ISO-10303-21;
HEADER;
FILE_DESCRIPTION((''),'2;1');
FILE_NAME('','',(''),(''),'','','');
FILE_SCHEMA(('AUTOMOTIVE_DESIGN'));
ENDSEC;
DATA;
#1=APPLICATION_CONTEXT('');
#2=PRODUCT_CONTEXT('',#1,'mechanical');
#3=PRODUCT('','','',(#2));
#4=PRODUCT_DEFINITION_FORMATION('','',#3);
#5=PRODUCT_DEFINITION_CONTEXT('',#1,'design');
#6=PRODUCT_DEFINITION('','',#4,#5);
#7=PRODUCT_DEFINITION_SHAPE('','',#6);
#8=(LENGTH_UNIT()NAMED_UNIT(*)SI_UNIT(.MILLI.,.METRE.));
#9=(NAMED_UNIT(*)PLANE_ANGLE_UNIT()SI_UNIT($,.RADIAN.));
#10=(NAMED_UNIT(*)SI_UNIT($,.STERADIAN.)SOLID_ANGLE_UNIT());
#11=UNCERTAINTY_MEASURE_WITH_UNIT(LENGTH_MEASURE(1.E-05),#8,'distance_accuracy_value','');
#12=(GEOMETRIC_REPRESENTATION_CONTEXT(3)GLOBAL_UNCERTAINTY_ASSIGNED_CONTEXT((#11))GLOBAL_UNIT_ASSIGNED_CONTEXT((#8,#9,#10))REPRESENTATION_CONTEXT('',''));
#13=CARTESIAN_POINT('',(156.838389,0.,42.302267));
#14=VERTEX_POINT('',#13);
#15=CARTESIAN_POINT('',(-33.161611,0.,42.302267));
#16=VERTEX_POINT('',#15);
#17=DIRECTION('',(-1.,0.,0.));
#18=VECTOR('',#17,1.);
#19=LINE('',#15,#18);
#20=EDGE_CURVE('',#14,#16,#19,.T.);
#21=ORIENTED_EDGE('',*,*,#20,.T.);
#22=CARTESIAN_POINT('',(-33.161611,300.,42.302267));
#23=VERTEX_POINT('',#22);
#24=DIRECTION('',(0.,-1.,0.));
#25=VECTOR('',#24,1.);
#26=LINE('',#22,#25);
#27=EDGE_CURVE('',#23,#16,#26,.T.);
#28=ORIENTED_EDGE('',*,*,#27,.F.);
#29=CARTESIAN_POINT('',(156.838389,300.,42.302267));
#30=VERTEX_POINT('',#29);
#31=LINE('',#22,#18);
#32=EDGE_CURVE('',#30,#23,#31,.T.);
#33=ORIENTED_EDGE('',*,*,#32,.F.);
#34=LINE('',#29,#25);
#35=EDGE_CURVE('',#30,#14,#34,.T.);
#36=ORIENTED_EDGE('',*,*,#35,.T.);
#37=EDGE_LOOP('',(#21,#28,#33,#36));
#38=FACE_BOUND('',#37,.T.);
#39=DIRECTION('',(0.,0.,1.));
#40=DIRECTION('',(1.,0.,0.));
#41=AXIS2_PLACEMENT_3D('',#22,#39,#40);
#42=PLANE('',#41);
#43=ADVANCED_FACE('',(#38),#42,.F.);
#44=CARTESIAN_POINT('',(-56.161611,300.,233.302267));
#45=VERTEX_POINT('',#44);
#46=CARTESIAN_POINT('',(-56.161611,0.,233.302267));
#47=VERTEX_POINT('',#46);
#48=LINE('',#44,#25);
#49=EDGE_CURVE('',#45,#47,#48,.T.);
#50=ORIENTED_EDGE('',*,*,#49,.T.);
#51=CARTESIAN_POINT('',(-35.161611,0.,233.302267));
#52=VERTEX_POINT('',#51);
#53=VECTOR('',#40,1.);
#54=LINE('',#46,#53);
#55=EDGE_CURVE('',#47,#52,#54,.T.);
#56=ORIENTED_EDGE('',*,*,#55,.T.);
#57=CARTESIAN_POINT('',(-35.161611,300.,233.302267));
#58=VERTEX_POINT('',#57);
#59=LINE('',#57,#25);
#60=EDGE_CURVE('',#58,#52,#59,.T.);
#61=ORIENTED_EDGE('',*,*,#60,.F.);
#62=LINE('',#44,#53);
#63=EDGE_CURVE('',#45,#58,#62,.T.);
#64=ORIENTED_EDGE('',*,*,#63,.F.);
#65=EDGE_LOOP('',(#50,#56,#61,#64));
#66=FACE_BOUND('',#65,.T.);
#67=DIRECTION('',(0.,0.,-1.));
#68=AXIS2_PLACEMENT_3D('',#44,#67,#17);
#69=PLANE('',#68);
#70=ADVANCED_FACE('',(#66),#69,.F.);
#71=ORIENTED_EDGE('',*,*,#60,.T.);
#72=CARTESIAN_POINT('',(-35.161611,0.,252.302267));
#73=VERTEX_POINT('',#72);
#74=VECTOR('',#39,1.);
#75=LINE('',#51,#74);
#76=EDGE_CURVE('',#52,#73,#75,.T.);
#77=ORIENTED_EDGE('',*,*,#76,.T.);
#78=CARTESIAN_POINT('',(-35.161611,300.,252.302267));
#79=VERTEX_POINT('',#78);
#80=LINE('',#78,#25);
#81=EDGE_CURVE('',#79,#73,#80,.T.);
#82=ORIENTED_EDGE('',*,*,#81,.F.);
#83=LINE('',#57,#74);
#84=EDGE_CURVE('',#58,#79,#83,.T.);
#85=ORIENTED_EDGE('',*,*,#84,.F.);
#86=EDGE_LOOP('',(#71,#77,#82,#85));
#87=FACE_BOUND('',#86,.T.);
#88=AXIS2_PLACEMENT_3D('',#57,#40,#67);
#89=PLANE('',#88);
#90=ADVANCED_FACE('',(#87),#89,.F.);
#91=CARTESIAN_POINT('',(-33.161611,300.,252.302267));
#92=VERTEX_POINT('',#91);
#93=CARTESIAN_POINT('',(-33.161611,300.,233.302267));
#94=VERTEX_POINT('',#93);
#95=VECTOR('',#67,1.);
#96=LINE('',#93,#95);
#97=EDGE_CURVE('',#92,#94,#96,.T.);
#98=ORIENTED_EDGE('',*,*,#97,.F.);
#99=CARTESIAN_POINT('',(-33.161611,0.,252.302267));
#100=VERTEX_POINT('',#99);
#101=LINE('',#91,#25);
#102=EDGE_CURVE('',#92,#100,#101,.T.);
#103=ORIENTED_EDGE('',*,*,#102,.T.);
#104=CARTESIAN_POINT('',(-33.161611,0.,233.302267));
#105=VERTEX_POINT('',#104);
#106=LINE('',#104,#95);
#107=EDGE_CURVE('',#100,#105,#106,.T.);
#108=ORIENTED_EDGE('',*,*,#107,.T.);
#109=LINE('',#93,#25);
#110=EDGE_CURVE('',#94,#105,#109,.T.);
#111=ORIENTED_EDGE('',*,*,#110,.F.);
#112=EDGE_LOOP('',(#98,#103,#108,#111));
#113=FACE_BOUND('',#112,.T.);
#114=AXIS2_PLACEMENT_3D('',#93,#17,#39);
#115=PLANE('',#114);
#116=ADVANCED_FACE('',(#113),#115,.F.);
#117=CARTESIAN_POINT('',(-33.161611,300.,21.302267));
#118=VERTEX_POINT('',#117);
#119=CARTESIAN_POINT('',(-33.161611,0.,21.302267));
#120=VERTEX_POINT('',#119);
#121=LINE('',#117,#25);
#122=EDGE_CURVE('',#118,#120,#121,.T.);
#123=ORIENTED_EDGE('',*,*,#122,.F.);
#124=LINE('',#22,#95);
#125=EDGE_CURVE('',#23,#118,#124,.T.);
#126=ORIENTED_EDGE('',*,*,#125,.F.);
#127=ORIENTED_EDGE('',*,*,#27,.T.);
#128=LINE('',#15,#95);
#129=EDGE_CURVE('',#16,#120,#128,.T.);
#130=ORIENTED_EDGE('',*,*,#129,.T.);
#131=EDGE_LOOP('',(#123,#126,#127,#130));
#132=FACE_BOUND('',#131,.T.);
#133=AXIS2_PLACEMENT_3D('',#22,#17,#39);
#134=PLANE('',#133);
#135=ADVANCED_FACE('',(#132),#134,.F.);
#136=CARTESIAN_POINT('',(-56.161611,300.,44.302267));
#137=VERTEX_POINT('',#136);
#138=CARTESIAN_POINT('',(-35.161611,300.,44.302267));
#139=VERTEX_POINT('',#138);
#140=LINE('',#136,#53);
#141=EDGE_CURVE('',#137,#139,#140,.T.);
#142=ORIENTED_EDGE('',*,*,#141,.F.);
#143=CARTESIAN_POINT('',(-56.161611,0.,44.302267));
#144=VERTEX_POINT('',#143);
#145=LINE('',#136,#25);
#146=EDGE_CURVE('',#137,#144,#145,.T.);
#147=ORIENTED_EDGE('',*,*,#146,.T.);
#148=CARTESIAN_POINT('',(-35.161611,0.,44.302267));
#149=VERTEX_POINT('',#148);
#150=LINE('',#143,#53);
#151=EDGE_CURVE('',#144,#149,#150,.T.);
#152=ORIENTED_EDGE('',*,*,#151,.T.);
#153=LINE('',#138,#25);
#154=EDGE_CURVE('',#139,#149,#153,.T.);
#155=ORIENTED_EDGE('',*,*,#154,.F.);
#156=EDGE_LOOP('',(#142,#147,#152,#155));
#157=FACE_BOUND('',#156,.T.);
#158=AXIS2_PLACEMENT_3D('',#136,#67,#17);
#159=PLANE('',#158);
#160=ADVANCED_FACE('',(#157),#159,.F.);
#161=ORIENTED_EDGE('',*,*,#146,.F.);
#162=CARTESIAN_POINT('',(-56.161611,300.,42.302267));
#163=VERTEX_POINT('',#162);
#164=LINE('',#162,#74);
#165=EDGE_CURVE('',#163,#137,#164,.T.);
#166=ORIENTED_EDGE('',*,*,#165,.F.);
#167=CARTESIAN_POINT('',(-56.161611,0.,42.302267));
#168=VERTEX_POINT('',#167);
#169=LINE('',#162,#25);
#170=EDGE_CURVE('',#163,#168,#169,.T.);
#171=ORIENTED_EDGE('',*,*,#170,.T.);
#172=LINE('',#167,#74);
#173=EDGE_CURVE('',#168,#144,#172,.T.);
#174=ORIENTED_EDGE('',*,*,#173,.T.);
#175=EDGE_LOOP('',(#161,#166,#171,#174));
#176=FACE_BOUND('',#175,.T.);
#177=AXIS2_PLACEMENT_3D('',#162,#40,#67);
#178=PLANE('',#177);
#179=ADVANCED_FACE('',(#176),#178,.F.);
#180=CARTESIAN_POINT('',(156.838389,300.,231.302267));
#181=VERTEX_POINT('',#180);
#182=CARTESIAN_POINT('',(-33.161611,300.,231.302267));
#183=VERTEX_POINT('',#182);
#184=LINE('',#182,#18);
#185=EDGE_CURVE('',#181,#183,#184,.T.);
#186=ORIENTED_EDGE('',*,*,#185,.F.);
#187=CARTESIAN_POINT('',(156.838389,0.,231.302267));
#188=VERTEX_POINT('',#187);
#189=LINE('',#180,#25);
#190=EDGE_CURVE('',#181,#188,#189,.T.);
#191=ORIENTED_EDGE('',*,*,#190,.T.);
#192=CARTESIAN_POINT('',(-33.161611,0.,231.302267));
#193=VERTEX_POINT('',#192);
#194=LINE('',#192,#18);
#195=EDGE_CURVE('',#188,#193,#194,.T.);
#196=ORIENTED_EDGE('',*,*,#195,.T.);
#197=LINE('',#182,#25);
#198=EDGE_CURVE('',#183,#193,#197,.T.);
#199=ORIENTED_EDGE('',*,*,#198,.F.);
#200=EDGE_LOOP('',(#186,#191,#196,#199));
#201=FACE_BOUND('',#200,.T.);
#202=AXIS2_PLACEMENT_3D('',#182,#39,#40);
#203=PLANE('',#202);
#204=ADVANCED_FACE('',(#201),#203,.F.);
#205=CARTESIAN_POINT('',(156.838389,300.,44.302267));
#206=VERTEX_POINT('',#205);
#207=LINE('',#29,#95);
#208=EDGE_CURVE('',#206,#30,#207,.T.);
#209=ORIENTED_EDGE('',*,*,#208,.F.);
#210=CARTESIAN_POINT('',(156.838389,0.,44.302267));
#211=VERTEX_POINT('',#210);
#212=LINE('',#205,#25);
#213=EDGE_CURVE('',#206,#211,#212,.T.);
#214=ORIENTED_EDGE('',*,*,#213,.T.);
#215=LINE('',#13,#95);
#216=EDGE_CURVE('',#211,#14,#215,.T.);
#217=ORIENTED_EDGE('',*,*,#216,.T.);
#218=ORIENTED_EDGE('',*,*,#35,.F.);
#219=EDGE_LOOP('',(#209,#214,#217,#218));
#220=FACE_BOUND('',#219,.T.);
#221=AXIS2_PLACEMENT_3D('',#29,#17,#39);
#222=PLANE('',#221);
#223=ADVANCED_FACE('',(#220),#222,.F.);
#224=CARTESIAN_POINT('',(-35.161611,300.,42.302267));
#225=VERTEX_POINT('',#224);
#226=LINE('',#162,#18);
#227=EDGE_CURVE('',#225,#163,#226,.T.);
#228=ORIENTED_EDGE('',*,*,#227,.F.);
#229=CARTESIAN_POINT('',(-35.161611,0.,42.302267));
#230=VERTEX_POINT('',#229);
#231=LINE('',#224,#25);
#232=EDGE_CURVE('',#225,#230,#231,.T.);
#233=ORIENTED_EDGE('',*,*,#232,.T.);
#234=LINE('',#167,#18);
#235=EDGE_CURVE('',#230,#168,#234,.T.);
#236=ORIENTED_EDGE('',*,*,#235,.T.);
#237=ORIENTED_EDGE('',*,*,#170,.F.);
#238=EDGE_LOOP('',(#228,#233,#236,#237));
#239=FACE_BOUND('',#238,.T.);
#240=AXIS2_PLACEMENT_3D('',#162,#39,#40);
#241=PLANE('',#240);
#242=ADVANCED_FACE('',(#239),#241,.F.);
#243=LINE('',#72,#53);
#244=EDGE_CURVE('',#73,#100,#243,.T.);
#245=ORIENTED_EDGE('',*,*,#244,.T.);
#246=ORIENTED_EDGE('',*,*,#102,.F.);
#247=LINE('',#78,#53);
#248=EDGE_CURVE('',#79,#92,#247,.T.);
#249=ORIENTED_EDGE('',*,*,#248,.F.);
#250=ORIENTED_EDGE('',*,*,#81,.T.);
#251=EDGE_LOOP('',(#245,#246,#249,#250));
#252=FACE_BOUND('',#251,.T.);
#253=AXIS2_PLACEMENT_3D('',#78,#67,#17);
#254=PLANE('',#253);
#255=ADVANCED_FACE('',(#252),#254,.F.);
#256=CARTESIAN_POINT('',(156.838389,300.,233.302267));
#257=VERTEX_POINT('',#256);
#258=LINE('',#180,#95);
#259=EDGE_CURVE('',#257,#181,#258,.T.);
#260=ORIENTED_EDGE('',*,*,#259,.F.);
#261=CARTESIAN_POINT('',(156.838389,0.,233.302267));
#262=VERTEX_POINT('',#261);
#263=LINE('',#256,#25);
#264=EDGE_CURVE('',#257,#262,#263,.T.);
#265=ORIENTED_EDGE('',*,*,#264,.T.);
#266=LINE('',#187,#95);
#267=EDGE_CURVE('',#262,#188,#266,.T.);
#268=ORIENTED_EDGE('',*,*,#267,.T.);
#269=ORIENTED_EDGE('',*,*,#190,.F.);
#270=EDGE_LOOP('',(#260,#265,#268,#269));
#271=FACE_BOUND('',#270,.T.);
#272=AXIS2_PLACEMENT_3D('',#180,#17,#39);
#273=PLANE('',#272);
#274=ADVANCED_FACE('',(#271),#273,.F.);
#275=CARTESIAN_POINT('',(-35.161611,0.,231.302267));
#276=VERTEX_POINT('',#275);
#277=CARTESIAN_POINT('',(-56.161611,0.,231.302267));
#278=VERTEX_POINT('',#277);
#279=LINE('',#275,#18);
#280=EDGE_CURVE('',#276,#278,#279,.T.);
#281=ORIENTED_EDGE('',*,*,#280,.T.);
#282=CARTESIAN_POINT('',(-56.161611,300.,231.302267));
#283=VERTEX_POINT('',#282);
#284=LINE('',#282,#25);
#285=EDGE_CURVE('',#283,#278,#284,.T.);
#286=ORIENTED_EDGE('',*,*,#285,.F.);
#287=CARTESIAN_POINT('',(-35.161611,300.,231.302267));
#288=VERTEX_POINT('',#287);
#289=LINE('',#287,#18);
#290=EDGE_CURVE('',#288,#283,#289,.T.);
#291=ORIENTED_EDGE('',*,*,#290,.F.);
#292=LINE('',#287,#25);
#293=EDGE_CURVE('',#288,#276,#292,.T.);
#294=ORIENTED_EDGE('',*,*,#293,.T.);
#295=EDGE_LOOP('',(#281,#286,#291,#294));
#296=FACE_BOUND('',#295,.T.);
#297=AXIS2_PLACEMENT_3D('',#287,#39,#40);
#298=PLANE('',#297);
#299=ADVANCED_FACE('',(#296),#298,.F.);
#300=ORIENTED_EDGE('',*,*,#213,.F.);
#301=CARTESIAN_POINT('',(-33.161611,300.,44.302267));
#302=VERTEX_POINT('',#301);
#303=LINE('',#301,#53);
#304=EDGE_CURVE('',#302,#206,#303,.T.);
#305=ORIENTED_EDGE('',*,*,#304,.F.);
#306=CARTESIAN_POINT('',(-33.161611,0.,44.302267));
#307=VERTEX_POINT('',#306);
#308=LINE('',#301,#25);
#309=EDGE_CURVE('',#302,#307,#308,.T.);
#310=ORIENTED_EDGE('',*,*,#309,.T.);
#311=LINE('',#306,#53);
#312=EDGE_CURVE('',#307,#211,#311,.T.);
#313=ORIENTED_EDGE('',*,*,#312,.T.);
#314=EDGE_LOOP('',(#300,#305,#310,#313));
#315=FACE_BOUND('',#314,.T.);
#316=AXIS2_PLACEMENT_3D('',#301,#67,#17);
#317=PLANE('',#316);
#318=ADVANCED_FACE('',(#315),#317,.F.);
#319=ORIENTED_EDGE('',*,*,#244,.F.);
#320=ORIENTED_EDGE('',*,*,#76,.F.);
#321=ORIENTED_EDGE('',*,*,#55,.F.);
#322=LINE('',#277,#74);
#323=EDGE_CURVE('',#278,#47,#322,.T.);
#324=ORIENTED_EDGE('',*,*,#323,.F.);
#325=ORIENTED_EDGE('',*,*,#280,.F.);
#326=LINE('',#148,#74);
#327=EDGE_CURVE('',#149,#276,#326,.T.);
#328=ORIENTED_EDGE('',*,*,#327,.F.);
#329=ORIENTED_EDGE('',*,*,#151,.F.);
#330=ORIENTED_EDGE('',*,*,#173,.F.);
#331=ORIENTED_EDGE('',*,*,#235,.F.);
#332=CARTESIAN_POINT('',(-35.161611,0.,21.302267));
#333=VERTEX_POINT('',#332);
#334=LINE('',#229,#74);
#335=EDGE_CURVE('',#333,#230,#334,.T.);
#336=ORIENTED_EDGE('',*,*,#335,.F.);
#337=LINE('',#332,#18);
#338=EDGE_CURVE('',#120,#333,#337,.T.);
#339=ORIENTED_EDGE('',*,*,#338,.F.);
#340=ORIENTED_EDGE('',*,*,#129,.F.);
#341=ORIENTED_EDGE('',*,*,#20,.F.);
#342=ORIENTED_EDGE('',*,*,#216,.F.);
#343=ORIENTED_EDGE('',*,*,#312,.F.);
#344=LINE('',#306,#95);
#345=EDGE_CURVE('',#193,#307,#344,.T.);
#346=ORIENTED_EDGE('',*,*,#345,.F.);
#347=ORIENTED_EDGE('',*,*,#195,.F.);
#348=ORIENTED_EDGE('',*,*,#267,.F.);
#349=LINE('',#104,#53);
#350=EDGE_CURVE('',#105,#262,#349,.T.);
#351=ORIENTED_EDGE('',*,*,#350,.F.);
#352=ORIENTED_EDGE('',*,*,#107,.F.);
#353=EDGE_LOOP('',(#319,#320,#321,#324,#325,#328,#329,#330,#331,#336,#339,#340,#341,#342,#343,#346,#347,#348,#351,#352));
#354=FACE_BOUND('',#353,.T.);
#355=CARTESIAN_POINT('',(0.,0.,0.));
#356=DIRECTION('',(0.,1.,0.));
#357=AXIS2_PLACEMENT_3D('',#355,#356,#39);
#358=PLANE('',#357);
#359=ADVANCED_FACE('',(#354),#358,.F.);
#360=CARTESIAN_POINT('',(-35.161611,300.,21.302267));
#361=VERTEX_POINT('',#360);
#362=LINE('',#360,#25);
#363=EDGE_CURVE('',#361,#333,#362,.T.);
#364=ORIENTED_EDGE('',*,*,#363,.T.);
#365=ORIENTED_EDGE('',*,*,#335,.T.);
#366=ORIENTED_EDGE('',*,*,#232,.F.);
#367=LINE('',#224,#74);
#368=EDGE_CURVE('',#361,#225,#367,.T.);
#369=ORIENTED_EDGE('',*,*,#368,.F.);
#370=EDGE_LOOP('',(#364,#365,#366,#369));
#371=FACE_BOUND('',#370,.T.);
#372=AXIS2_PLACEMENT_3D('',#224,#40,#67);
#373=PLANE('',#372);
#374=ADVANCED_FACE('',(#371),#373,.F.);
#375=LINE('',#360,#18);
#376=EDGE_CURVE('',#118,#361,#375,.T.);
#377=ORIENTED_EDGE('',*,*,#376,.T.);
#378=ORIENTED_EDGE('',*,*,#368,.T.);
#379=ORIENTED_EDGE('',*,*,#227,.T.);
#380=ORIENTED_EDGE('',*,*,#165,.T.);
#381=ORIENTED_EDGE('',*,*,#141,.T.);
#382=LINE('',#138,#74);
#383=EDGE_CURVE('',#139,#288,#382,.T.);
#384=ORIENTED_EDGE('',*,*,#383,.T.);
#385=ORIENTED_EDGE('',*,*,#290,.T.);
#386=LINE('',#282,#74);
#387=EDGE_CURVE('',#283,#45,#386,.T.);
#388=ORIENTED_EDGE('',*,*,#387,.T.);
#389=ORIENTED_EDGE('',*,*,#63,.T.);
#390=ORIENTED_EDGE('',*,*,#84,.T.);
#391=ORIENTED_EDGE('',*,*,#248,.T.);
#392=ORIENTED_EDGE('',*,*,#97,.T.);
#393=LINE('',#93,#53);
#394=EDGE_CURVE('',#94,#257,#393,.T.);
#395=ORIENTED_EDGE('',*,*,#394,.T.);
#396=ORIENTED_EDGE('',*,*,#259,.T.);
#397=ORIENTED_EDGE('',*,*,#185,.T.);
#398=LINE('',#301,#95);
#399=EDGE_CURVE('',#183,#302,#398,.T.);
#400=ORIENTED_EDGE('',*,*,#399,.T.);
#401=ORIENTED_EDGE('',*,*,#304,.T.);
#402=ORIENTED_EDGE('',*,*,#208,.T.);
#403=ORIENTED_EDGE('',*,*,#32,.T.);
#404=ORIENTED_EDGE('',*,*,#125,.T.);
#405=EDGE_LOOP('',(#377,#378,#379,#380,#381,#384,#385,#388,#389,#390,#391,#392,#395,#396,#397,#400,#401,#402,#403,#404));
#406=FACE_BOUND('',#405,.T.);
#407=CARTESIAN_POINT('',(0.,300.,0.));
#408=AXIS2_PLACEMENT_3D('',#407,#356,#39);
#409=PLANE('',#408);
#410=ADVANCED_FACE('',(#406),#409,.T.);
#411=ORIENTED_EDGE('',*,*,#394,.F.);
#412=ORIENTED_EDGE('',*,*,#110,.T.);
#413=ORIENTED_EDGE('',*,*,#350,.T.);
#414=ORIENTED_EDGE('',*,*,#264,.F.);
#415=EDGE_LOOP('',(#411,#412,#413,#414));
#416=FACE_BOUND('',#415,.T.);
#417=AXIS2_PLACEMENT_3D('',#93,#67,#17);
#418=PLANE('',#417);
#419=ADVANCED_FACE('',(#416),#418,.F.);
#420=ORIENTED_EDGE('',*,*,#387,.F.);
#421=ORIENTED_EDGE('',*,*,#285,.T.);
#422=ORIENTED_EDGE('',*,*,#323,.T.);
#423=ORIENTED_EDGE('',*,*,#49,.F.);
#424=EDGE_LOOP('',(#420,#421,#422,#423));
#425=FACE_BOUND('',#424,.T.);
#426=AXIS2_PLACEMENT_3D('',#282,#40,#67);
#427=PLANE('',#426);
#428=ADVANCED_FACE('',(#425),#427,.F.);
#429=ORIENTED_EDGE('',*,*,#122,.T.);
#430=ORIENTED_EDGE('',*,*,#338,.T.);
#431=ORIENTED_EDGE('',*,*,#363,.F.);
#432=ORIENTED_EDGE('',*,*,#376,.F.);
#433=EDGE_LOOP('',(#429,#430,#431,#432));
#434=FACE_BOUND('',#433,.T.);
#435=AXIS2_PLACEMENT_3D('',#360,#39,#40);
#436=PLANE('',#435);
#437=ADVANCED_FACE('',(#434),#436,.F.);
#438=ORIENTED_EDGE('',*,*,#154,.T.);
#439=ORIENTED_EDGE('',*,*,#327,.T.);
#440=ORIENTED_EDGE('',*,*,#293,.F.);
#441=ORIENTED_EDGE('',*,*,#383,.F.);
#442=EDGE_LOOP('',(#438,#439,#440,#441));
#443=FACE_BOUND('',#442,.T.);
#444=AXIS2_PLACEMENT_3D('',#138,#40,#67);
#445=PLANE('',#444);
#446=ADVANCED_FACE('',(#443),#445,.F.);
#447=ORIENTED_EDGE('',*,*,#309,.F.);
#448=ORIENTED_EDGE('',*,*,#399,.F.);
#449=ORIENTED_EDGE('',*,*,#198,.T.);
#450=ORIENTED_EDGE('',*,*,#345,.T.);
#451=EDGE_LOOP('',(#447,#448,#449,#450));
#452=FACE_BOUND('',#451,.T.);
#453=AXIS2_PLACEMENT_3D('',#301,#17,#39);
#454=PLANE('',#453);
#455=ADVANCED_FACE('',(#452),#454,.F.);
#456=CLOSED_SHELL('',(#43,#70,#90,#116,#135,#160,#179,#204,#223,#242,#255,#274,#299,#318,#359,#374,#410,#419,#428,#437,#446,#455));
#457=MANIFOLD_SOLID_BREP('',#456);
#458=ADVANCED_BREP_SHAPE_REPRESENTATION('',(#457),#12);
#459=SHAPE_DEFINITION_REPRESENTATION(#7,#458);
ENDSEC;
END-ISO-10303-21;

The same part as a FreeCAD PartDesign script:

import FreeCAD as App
import Part
import Sketcher


def add_polygon(sketch, points):
    """Adds a closed chain of lines whose ends are joined by coincident constraints."""
    first, n = sketch.GeometryCount, len(points)
    for a, b in zip(points, points[1:] + points[:1]):
        sketch.addGeometry(Part.LineSegment(App.Vector(*a, 0), App.Vector(*b, 0)), False)
    for i in range(n):
        sketch.addConstraint(Sketcher.Constraint("Coincident", first + i, 2, first + (i + 1) % n, 1))

doc = App.newDocument("Part")
body = doc.addObject("PartDesign::Body", "Body")

sketch1 = body.newObject("Sketcher::SketchObject", "Sketch")
sketch1.AttachmentSupport = (doc.getObject("XZ_Plane"), [""])
sketch1.MapMode = "FlatFace"
add_polygon(sketch1, [(-35.161611, 42.302267), (-56.161611, 42.302267), (-56.161611, 44.302267), (-35.161611, 44.302267), (-35.161611, 231.302267), (-56.161611, 231.302267), (-56.161611, 233.302267), (-35.161611, 233.302267), (-35.161611, 252.302267), (-33.161611, 252.302267), (-33.161611, 233.302267), (156.838389, 233.302267), (156.838389, 231.302267), (-33.161611, 231.302267), (-33.161611, 44.302267), (156.838389, 44.302267), (156.838389, 42.302267), (-33.161611, 42.302267), (-33.161611, 21.302267), (-35.161611, 21.302267)])
sketch1.addConstraint([
    Sketcher.Constraint("Horizontal", 0),
    Sketcher.Constraint("Vertical", 1),
    Sketcher.Constraint("Horizontal", 2),
    Sketcher.Constraint("Vertical", 3),
    Sketcher.Constraint("Horizontal", 4),
    Sketcher.Constraint("Vertical", 5),
    Sketcher.Constraint("Horizontal", 6),
    Sketcher.Constraint("Vertical", 7),
    Sketcher.Constraint("Horizontal", 8),
    Sketcher.Constraint("Vertical", 9),
    Sketcher.Constraint("Horizontal", 10),
    Sketcher.Constraint("Vertical", 11),
    Sketcher.Constraint("Horizontal", 12),
    Sketcher.Constraint("Vertical", 13),
    Sketcher.Constraint("Horizontal", 14),
    Sketcher.Constraint("Vertical", 15),
    Sketcher.Constraint("Horizontal", 16),
    Sketcher.Constraint("Vertical", 17),
    Sketcher.Constraint("Horizontal", 18),
    Sketcher.Constraint("Vertical", 19),
    Sketcher.Constraint("Horizontal", 6, 2, 9, 2),
    Sketcher.Constraint("Horizontal", 4, 2, 11, 2),
    Sketcher.Constraint("Horizontal", 2, 2, 13, 2),
    Sketcher.Constraint("Horizontal", 0, 2, 15, 2),
    Sketcher.Constraint("Vertical", 1, 2, 4, 2),
    Sketcher.Constraint("Vertical", 3, 2, 6, 2),
    Sketcher.Constraint("Vertical", 9, 2, 12, 2),
    Sketcher.Constraint("Vertical", 11, 2, 14, 2),
    Sketcher.Constraint("Vertical", 13, 2, 16, 2),
    Sketcher.Constraint("Vertical", 7, 2, 18, 2),
    Sketcher.Constraint("Equal", 18, 1),
    Sketcher.Constraint("Equal", 1, 5),
    Sketcher.Constraint("Equal", 6, 17),
    Sketcher.Constraint("DistanceX", 0, 2, 0, 1, 21.0),
    Sketcher.Constraint("DistanceX", 8, 1, 8, 2, 2.0),
    Sketcher.Constraint("DistanceX", 10, 1, 10, 2, 190.0),
    Sketcher.Constraint("DistanceY", 3, 1, 3, 2, 187.0),
    Sketcher.Constraint("DistanceY", 7, 1, 7, 2, 19.0),
    Sketcher.Constraint("DistanceX", 0, 2, -1, 1, 56.161611),
    Sketcher.Constraint("DistanceY", -1, 1, 0, 2, 42.302267),
])
pad1 = body.newObject("PartDesign::Pad", "Pad")
pad1.Profile = sketch1
pad1.Length = 300
pad1.Reversed = True

doc.recompute()
